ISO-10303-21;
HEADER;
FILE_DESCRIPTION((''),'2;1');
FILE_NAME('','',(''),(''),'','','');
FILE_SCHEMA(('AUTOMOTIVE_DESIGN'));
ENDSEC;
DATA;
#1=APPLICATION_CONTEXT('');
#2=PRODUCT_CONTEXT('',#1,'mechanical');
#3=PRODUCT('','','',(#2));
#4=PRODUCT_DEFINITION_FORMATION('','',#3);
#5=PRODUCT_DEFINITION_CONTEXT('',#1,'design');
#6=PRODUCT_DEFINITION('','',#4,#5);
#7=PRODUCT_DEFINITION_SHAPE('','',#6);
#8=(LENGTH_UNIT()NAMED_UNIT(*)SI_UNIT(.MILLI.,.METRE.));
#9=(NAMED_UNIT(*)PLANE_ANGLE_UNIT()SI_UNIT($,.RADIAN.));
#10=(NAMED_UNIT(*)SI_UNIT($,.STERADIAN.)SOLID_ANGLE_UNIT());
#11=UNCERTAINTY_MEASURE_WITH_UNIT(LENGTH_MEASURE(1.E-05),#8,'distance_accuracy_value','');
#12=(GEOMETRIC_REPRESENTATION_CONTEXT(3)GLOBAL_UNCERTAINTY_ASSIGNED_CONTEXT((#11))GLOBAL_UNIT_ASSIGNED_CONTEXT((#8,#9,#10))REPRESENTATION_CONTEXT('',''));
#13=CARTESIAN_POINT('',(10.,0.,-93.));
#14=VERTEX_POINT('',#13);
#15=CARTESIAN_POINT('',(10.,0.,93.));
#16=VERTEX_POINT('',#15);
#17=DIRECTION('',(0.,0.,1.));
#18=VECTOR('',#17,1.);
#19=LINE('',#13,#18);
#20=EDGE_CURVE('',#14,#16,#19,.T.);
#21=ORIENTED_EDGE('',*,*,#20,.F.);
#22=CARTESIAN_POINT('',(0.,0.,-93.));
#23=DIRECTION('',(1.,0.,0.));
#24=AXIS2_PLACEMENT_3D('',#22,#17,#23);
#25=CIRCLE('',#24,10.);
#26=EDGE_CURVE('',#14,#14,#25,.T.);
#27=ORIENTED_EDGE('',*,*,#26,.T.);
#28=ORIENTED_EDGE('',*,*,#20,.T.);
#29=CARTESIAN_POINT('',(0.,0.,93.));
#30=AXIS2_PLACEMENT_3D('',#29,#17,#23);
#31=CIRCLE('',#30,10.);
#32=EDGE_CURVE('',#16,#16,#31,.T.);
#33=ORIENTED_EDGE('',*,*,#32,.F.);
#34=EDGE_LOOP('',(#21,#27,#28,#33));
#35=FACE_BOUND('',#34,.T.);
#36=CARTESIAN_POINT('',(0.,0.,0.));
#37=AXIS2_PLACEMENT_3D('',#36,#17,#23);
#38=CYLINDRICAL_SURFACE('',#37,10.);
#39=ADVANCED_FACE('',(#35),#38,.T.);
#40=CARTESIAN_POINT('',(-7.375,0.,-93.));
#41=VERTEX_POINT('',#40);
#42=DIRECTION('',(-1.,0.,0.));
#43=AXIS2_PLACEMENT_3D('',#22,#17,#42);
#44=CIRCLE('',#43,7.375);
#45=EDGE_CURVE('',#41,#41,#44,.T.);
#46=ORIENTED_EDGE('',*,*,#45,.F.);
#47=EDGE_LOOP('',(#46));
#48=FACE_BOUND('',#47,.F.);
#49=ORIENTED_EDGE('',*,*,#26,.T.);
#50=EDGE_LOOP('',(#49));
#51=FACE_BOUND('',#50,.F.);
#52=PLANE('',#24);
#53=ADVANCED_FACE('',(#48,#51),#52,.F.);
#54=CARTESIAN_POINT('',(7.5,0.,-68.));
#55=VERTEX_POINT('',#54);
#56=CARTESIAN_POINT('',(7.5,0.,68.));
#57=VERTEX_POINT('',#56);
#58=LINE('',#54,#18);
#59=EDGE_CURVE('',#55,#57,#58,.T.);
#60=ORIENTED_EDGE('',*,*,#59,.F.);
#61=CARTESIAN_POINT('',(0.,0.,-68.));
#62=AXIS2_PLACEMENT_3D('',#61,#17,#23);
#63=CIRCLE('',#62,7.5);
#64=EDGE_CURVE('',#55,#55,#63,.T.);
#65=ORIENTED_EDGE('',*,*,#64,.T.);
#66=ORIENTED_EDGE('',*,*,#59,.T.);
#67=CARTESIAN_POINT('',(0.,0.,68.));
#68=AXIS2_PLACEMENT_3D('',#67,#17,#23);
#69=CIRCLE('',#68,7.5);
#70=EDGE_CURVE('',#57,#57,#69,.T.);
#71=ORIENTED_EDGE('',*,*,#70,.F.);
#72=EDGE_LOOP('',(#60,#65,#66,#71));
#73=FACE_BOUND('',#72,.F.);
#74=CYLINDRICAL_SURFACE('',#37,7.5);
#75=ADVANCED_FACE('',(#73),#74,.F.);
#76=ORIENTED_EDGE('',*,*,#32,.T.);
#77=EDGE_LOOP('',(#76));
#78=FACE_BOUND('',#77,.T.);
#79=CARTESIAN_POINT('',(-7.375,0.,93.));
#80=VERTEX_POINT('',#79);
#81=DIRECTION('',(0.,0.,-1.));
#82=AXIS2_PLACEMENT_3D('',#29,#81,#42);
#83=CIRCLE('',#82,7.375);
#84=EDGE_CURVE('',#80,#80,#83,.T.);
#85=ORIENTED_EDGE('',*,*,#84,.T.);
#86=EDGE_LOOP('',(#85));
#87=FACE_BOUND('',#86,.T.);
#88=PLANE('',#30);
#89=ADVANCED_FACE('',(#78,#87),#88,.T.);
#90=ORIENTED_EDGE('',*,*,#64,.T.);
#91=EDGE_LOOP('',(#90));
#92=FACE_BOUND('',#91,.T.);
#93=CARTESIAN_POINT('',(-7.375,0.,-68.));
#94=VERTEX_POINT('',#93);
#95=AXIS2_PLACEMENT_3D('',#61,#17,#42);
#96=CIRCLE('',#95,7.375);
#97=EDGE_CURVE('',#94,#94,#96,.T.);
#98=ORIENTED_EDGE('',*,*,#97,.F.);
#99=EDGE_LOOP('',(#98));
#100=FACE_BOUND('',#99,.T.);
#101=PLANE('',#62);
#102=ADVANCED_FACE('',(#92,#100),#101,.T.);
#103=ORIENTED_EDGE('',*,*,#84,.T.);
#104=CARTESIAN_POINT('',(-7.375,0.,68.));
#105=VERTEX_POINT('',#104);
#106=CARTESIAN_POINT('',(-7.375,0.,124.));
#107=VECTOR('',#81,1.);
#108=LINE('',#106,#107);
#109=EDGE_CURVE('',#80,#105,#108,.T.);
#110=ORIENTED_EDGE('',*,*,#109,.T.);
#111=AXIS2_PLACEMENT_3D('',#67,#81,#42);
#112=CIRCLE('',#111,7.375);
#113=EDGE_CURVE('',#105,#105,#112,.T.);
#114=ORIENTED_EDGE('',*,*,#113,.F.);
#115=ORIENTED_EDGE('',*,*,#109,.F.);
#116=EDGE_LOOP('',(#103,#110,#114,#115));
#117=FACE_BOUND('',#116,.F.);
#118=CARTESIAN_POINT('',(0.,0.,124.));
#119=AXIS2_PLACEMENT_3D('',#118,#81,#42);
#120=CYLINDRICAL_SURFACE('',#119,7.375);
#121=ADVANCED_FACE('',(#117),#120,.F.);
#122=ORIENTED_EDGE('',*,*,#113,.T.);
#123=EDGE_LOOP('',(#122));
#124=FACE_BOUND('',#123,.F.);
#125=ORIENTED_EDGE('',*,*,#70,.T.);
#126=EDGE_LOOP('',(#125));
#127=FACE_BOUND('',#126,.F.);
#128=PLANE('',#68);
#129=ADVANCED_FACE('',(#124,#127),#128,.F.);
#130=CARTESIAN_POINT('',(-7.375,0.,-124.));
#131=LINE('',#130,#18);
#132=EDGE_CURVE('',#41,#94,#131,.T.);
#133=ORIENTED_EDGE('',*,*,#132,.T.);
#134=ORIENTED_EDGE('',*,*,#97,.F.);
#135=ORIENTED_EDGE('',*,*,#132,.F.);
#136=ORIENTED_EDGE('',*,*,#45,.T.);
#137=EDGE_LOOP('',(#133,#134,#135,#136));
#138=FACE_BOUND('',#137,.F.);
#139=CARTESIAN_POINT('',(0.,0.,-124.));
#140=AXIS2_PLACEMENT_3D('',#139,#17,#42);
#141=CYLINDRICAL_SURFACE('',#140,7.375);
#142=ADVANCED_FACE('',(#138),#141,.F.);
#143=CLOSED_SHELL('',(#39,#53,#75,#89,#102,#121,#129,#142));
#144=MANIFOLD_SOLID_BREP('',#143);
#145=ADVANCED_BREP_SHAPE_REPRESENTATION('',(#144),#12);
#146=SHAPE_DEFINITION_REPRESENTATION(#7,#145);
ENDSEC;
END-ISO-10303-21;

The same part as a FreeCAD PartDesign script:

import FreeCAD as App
import Part
import Sketcher
from FreeCAD import Vector
Q = App.Units.Quantity

doc = App.newDocument("Part")
params = doc.addObject("Spreadsheet::Sheet", "Params")
for row, (alias, value) in enumerate([
    ("sketch1_diameter", "20 mm"),
    ("pad1_length", "186 mm"),
    ("sketch2_diameter", "14.75 mm"),
    ("hole_diameter", "14.75 mm"),
    ("hole_depth", "31 mm"),
    ("sketch3_diameter", "14.75 mm"),
    ("hole2_diameter", "14.75 mm"),
    ("hole2_depth", "31 mm"),
    ("sketch4_diameter", "15 mm"),
    ("pocket1_length", "136 mm"),
], start=1):
    params.set(f"A{row}", alias)
    params.set(f"B{row}", "=" + value)
    params.setAlias(f"B{row}", alias)

body = doc.addObject("PartDesign::Body", "Body")

sketch1 = body.newObject("Sketcher::SketchObject", "Sketch")
sketch1.AttachmentSupport = (doc.getObject("XY_Plane"), [""])
sketch1.MapMode = "FlatFace"
sketch1.addGeometry(Part.Circle(Vector(0, 0, 0), Vector(0, 0, 1), 10), False)
sketch1.addConstraint(Sketcher.Constraint("Coincident", 0, 3, -1, 1))
sketch1.addConstraint(Sketcher.Constraint("Diameter", 0, Q("20 mm")))
sketch1.setExpression("Constraints[1]", "Params.sketch1_diameter")
pad1 = body.newObject("PartDesign::Pad", "Pad")
pad1.Profile = sketch1
pad1.setExpression("Length", "Params.pad1_length")
pad1.Midplane = True

sketch2 = body.newObject("Sketcher::SketchObject", "Sketch001")
sketch2.AttachmentSupport = (doc.getObject("XY_Plane"), [""])
sketch2.MapMode = "FlatFace"
sketch2.AttachmentOffset = App.Placement(Vector(0, 0, 93), App.Rotation())
sketch2.addGeometry(Part.Circle(Vector(0, 0, 0), Vector(0, 0, 1), 7.375), False)
sketch2.addConstraint(Sketcher.Constraint("Coincident", 0, 3, -1, 1))
sketch2.addConstraint(Sketcher.Constraint("Diameter", 0, Q("14.75 mm")))
sketch2.setExpression("Constraints[1]", "Params.sketch2_diameter")
doc.recompute()
hole = body.newObject("PartDesign::Hole", "Hole")
hole.Profile = sketch2
hole.ThreadType = "None"
hole.setExpression("Diameter", "Params.hole_diameter")
hole.DepthType = "Dimension"
hole.setExpression("Depth", "Params.hole_depth")
hole.DrillPoint = "Angled"
hole.DrillPointAngle = 118

sketch3 = body.newObject("Sketcher::SketchObject", "Sketch002")
sketch3.AttachmentSupport = (doc.getObject("XY_Plane"), [""])
sketch3.MapMode = "FlatFace"
sketch3.AttachmentOffset = App.Placement(Vector(0, 0, -93), App.Rotation())
sketch3.addGeometry(Part.Circle(Vector(0, 0, 0), Vector(0, 0, 1), 7.375), False)
sketch3.addConstraint(Sketcher.Constraint("Coincident", 0, 3, -1, 1))
sketch3.addConstraint(Sketcher.Constraint("Diameter", 0, Q("14.75 mm")))
sketch3.setExpression("Constraints[1]", "Params.sketch3_diameter")
doc.recompute()
hole2 = body.newObject("PartDesign::Hole", "Hole001")
hole2.Profile = sketch3
hole2.ThreadType = "None"
hole2.setExpression("Diameter", "Params.hole2_diameter")
hole2.DepthType = "Dimension"
hole2.setExpression("Depth", "Params.hole2_depth")
hole2.DrillPoint = "Angled"
hole2.DrillPointAngle = 118
hole2.Reversed = True

sketch4 = body.newObject("Sketcher::SketchObject", "Sketch003")
sketch4.AttachmentSupport = (doc.getObject("XY_Plane"), [""])
sketch4.MapMode = "FlatFace"
sketch4.addGeometry(Part.Circle(Vector(0, 0, 0), Vector(0, 0, 1), 7.5), False)
sketch4.addConstraint(Sketcher.Constraint("Coincident", 0, 3, -1, 1))
sketch4.addConstraint(Sketcher.Constraint("Diameter", 0, Q("15 mm")))
sketch4.setExpression("Constraints[1]", "Params.sketch4_diameter")
pocket1 = body.newObject("PartDesign::Pocket", "Pocket")
pocket1.Profile = sketch4
pocket1.setExpression("Length", "Params.pocket1_length")
pocket1.Midplane = True

doc.recompute()
